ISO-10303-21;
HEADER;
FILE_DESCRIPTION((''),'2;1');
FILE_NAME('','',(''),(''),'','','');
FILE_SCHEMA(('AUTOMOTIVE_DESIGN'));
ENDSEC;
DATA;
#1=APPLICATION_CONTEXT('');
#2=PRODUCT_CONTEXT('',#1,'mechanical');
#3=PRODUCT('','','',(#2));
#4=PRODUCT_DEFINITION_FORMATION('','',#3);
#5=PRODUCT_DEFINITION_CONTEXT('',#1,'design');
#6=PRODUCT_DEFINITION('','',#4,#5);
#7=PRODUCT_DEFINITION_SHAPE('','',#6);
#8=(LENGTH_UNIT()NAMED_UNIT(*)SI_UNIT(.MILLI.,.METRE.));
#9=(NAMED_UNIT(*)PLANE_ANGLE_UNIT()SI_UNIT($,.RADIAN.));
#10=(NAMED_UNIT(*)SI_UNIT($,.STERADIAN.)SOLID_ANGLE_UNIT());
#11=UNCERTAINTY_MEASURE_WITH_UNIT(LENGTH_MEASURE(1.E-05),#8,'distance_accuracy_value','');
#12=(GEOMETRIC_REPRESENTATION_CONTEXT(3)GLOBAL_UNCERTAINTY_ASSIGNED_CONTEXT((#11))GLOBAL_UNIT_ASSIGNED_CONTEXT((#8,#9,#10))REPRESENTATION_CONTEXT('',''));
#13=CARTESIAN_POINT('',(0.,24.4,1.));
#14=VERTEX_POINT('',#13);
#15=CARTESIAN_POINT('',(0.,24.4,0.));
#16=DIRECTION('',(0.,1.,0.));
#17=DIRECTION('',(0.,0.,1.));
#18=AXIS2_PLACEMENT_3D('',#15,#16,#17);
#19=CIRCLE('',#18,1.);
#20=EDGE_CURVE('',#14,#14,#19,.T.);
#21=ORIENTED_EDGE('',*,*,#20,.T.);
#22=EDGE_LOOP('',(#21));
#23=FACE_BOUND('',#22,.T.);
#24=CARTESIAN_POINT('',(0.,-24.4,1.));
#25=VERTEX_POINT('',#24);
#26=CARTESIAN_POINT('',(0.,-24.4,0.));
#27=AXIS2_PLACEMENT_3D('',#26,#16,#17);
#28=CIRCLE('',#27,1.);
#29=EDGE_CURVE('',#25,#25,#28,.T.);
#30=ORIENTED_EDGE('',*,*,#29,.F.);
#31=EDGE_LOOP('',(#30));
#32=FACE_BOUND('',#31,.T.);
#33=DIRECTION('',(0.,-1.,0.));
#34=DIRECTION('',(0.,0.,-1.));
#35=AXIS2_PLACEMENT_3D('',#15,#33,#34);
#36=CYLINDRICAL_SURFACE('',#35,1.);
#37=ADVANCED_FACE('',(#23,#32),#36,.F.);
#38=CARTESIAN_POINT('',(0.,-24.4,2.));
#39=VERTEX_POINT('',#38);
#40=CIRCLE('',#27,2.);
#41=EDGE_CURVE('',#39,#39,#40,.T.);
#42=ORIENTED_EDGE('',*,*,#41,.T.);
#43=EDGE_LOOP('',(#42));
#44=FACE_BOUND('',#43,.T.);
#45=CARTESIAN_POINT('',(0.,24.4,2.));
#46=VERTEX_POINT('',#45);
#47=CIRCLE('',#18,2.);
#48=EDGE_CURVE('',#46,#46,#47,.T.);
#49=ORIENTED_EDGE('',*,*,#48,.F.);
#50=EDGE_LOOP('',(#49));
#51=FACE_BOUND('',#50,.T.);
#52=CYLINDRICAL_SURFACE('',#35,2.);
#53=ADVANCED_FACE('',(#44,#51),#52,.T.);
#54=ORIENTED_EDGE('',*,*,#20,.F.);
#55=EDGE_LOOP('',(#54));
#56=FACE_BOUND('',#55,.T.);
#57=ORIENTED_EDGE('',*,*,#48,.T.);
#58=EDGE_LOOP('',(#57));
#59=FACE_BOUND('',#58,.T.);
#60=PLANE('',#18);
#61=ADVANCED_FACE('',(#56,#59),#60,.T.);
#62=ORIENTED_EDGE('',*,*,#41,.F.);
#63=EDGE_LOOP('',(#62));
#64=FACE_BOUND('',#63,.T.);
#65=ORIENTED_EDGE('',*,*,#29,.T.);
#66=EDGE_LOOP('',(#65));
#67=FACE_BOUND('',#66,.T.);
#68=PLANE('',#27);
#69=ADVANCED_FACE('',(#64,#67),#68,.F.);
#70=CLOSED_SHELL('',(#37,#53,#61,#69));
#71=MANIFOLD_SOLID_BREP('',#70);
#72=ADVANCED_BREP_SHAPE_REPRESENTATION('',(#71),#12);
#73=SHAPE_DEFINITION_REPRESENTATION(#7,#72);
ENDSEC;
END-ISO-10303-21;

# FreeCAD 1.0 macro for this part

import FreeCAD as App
import Part
import Sketcher

doc = App.newDocument("Part")
body = doc.addObject("PartDesign::Body", "Body")

sketch1 = body.newObject("Sketcher::SketchObject", "Sketch")
sketch1.AttachmentSupport = (doc.getObject("XZ_Plane"), [""])
sketch1.MapMode = "FlatFace"
sketch1.addGeometry([
    Part.Circle(App.Vector(0, 0, 0), App.Vector(0, 0, 1), 2),
    Part.Circle(App.Vector(0, 0, 0), App.Vector(0, 0, 1), 1),
], False)
sketch1.addConstraint([
    Sketcher.Constraint("Coincident", 0, 3, -1, 1),
    Sketcher.Constraint("Coincident", 1, 3, -1, 1),
    Sketcher.Constraint("Diameter", 0, 4.0),
    Sketcher.Constraint("Diameter", 1, 2.0),
])
pad1 = body.newObject("PartDesign::Pad", "Pad")
pad1.Profile = sketch1
pad1.Length = 48.8
pad1.Midplane = True

doc.recompute()
